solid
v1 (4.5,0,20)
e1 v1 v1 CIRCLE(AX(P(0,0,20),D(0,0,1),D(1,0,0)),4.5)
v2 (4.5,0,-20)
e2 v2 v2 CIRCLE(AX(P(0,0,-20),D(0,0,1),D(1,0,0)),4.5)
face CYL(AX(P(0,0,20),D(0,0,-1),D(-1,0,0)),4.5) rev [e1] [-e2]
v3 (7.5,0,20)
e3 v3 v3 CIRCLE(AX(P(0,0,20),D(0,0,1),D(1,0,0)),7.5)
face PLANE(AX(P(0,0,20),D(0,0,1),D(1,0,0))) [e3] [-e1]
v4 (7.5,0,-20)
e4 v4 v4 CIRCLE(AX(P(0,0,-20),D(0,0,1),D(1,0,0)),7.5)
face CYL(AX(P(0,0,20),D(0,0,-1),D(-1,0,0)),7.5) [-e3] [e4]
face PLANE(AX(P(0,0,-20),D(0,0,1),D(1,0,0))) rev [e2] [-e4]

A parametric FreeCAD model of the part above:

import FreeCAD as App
import Part
import Sketcher
Q = App.Units.Quantity

doc = App.newDocument("Part")
params = doc.addObject("Spreadsheet::Sheet", "Params")
for row, (alias, value) in enumerate([
    ("sketch1_diameter", "15 mm"),
    ("sketch1_diameter2", "9 mm"),
    ("pad1_length", "40 mm"),
], start=1):
    params.set(f"A{row}", alias)
    params.set(f"B{row}", "=" + value)
    params.setAlias(f"B{row}", alias)

body = doc.addObject("PartDesign::Body", "Body")

# Sketch on XY plane
sketch1 = body.newObject("Sketcher::SketchObject", "Sketch")
sketch1.AttachmentSupport = (doc.getObject("XY_Plane"), [""])
sketch1.MapMode = "FlatFace"
sketch1.addGeometry([
    Part.Circle(App.Vector(0, 0, 0), App.Vector(0, 0, 1), 7.5),
    Part.Circle(App.Vector(0, 0, 0), App.Vector(0, 0, 1), 4.5),
], False)
sketch1.addConstraint([
    Sketcher.Constraint("Coincident", 0, 3, -1, 1),
    Sketcher.Constraint("Coincident", 1, 3, -1, 1),
    Sketcher.Constraint("Diameter", 0, Q("15 mm")),
    Sketcher.Constraint("Diameter", 1, Q("9 mm")),
])
sketch1.setExpression("Constraints[2]", "Params.sketch1_diameter")
sketch1.setExpression("Constraints[3]", "Params.sketch1_diameter2")
pad1 = body.newObject("PartDesign::Pad", "Pad")
pad1.Profile = sketch1
pad1.setExpression("Length", "Params.pad1_length")
pad1.Midplane = True

doc.recompute()
